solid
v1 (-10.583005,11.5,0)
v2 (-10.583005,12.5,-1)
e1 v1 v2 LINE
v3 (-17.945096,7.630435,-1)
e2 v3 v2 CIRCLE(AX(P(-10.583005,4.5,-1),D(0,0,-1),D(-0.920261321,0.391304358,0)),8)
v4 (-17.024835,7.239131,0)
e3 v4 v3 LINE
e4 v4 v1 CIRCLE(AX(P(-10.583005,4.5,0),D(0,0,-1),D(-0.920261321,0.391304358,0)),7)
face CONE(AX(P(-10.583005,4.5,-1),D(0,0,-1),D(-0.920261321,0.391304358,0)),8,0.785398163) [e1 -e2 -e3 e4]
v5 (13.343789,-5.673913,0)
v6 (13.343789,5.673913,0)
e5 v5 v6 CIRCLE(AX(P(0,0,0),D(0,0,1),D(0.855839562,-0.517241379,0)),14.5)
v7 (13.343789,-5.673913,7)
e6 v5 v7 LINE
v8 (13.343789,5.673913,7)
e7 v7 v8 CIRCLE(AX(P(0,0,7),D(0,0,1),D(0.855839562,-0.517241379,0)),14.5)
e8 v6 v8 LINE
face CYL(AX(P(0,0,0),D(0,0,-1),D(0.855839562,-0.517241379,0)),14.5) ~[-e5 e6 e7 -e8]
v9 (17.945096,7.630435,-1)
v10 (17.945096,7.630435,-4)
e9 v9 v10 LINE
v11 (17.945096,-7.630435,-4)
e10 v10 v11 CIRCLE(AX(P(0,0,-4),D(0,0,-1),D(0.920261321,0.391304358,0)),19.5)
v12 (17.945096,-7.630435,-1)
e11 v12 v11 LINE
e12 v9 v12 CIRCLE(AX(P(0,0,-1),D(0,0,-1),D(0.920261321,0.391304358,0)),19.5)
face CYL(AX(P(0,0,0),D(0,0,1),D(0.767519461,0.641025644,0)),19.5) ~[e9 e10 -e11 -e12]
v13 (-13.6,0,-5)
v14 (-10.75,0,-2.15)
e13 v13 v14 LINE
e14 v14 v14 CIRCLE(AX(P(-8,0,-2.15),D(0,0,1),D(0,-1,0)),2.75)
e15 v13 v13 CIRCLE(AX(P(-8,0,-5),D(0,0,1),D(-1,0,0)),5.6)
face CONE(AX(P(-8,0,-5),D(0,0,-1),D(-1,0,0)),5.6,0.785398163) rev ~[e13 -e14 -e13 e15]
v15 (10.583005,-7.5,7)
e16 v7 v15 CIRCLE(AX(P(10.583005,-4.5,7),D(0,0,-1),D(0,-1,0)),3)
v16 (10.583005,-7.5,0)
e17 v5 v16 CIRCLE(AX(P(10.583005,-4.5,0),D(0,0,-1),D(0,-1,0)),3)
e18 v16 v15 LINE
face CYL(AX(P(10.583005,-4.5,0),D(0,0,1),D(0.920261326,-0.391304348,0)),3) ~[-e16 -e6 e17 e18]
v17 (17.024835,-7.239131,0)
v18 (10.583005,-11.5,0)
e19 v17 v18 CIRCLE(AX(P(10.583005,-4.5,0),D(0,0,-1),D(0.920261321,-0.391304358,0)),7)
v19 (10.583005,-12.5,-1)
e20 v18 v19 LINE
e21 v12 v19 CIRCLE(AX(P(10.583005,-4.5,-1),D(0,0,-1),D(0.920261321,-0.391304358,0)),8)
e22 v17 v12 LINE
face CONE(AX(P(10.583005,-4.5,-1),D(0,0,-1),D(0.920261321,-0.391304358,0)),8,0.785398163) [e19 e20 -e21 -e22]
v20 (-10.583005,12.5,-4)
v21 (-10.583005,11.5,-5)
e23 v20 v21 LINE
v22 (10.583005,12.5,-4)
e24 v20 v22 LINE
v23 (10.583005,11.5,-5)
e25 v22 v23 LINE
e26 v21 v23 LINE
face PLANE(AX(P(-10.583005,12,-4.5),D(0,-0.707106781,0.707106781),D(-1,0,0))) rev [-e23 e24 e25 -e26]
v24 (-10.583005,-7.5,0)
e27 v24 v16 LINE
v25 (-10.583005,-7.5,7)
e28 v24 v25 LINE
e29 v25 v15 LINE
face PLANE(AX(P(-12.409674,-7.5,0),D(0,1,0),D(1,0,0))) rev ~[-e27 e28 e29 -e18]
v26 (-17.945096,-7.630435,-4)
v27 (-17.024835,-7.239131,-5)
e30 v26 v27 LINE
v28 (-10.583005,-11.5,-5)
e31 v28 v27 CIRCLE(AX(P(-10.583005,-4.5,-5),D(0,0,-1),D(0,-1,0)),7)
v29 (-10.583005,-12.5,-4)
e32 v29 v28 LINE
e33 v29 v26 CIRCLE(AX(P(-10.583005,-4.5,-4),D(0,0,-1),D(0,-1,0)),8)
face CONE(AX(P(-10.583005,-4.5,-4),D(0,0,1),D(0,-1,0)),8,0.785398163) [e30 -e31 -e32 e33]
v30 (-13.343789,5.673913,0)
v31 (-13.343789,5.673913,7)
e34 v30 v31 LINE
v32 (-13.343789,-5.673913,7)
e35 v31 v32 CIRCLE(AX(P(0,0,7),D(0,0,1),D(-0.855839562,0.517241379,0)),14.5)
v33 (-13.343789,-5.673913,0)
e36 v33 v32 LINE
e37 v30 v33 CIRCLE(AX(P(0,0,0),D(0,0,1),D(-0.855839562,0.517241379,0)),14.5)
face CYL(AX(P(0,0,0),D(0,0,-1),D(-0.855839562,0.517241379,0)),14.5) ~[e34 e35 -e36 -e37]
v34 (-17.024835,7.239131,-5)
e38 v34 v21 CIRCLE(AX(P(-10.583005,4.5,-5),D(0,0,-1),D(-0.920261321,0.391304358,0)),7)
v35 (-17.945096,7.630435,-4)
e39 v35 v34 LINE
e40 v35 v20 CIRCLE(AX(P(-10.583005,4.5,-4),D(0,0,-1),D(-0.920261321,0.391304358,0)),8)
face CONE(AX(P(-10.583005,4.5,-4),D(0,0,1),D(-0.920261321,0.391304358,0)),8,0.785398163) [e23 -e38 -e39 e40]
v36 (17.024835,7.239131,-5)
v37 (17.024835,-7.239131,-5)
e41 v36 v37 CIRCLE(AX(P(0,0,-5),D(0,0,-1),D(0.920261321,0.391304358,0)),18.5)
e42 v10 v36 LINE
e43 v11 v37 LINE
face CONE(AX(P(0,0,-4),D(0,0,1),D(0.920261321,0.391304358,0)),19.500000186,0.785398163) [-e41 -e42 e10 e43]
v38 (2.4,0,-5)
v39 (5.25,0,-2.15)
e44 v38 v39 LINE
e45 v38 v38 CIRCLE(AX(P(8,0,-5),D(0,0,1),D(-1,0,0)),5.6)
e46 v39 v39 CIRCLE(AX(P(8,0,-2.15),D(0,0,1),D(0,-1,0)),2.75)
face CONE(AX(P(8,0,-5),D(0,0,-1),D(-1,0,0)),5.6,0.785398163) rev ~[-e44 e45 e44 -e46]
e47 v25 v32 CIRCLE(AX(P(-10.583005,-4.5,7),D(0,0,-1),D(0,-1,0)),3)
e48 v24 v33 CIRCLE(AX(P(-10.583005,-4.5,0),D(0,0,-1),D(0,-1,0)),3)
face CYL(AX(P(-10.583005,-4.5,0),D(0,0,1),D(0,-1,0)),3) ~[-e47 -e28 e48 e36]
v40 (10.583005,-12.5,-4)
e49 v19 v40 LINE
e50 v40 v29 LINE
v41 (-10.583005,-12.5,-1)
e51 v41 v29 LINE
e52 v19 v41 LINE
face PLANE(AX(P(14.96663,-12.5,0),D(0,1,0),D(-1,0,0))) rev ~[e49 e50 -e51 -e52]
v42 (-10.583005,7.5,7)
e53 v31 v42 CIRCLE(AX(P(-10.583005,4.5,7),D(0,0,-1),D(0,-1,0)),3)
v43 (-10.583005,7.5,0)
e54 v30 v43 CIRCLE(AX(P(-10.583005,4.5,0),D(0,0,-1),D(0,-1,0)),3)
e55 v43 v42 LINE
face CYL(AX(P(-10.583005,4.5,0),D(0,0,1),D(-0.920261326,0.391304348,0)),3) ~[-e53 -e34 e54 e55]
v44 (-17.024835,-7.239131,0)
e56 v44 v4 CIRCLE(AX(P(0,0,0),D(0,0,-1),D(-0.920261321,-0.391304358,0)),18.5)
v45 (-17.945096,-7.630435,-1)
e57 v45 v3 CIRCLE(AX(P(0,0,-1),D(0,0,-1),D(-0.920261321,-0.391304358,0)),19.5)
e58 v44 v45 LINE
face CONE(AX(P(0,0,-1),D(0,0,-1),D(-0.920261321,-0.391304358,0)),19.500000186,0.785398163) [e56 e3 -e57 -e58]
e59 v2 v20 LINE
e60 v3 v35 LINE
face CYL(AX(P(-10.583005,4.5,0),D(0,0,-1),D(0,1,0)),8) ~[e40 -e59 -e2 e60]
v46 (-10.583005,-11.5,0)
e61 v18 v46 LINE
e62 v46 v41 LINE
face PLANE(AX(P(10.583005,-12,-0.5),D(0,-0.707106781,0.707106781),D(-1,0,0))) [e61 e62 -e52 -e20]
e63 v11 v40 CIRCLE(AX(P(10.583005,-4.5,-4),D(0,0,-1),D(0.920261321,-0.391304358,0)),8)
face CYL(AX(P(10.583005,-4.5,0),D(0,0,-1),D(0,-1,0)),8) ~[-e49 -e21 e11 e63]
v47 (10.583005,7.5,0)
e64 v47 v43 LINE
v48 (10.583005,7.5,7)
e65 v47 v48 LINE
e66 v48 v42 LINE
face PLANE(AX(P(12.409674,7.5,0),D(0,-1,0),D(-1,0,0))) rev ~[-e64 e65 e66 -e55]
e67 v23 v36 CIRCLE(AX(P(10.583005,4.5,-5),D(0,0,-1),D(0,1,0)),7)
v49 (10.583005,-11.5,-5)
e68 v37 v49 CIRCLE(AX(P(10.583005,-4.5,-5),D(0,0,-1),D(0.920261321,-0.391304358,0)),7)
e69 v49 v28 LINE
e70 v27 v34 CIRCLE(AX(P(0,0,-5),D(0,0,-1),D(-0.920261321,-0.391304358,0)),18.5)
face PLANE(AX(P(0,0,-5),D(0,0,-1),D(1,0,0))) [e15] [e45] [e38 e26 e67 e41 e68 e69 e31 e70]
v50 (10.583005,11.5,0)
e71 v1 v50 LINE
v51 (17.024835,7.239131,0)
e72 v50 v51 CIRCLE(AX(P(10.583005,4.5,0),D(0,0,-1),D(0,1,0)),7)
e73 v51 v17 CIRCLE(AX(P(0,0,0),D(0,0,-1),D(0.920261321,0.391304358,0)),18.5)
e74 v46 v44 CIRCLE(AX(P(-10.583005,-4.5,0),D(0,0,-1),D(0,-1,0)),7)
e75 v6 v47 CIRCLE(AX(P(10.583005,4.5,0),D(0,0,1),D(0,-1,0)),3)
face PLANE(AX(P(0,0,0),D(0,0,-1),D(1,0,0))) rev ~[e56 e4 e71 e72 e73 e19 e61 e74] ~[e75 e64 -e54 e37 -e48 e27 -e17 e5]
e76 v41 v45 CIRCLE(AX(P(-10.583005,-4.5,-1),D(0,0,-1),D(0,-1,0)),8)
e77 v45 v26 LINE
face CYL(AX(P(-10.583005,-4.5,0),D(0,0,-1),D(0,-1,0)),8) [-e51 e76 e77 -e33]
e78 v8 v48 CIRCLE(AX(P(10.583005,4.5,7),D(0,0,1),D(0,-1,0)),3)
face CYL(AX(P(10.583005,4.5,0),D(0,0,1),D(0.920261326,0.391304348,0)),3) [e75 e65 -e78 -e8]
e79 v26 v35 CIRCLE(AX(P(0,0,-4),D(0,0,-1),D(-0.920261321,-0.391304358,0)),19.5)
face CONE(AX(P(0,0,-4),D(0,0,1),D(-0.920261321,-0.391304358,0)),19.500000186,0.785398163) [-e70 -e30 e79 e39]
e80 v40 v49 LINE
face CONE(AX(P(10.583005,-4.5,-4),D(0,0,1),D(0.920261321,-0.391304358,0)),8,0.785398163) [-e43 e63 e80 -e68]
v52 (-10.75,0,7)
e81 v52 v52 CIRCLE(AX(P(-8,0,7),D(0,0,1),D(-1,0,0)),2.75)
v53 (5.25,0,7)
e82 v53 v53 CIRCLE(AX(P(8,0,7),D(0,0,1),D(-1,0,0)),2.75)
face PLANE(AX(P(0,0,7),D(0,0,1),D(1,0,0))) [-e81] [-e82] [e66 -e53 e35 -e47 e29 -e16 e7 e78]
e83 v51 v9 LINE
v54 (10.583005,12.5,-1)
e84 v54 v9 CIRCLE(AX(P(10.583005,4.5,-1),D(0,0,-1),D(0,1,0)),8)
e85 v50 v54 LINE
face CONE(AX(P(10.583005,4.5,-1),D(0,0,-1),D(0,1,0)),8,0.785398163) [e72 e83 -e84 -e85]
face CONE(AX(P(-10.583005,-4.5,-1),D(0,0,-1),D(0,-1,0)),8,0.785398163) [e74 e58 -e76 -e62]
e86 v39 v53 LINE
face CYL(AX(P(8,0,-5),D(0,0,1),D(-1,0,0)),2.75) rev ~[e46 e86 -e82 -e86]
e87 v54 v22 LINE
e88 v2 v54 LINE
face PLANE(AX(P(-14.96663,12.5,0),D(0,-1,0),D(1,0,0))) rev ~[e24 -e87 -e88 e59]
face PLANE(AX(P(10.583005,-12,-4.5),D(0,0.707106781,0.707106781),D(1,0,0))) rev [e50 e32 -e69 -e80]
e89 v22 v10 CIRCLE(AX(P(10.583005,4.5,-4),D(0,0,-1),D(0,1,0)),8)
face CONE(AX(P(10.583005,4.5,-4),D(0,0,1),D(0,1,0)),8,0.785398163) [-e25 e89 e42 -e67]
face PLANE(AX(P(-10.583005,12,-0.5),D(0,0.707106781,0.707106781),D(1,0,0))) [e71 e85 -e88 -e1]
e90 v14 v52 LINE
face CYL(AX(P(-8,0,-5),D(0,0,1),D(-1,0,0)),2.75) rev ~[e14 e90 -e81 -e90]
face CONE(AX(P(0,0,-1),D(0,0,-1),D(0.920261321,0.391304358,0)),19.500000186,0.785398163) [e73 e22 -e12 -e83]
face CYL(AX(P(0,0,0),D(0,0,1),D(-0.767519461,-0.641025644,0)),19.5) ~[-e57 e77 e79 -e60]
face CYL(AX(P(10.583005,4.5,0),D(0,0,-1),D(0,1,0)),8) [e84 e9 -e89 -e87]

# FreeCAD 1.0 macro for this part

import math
import FreeCAD as App
import Part
import Sketcher
from FreeCAD import Vector
Q = App.Units.Quantity


def edges_at(feature, points):
    """Names of the edges that pass closest to the given points."""
    edges = feature.Shape.Edges
    near = lambda p: min(range(len(edges)), key=lambda i: edges[i].distToShape(Part.Vertex(*p))[0])
    return sorted({f"Edge{near(p) + 1}" for p in points})

doc = App.newDocument("Part")
params = doc.addObject("Spreadsheet::Sheet", "Params")
for row, (alias, value) in enumerate([
    ("sketch1_radius", "14.5 mm"),
    ("pad1_length", "7 mm"),
    ("sketch2_radius", "19.5 mm"),
    ("pad2_length", "5 mm"),
    ("sketch3_diameter", "5.5 mm"),
    ("hole_diameter", "5.5 mm"),
    ("hole_csink_diameter", "11.2 mm"),
    ("fillet_radius", "8 mm"),
    ("fillet2_radius", "3 mm"),
    ("chamfer_size", "1 mm"),
], start=1):
    params.set(f"A{row}", alias)
    params.set(f"B{row}", "=" + value)
    params.setAlias(f"B{row}", alias)

body = doc.addObject("PartDesign::Body", "Body")

# Sketch on XY plane
sketch1 = doc.addObject("Sketcher::SketchObject", "Sketch")
body.addObject(sketch1)
sketch1.AttachmentSupport = (doc.XY_Plane, [""])
sketch1.MapMode = "FlatFace"
sketch1.addGeometry(Part.LineSegment(Vector(12, 8, 0), Vector(-12, 8, 0)), False)
sketch1.addGeometry(Part.ArcOfCircle(Part.Circle(Vector(0, 0, 0), Vector(0, 0, 1), 14), math.radians(149), math.radians(211)), False)
sketch1.addGeometry(Part.LineSegment(Vector(-12, -8, 0), Vector(12, -8, 0)), False)
sketch1.addGeometry(Part.ArcOfCircle(Part.Circle(Vector(0, 0, 0), Vector(0, 0, 1), 14), math.radians(-31), math.radians(31)), False)
sketch1.addConstraint(Sketcher.Constraint("Coincident", 0, 2, 1, 1))
sketch1.addConstraint(Sketcher.Constraint("Coincident", 1, 2, 2, 1))
sketch1.addConstraint(Sketcher.Constraint("Coincident", 2, 2, 3, 1))
sketch1.addConstraint(Sketcher.Constraint("Coincident", 3, 2, 0, 1))
sketch1.addConstraint(Sketcher.Constraint("Horizontal", 0))
sketch1.addConstraint(Sketcher.Constraint("Horizontal", 2))
sketch1.addConstraint(Sketcher.Constraint("Coincident", 1, 3, -1, 1))
sketch1.addConstraint(Sketcher.Constraint("Coincident", 3, 3, -1, 1))
sketch1.addConstraint(Sketcher.Constraint("Equal", 1, 3))
sketch1.addConstraint(Sketcher.Constraint("Vertical", 0, 2, 1, 2))
sketch1.addConstraint(Sketcher.Constraint("Radius", 1, Q("14.5 mm")))
sketch1.addConstraint(Sketcher.Constraint("DistanceY", 1, 2, 0, 2, Q("15 mm")))
sketch1.setExpression("Constraints[10]", "Params.sketch1_radius")
pad1 = doc.addObject("PartDesign::Pad", "Pad")
body.addObject(pad1)
pad1.Profile = sketch1
pad1.setExpression("Length", "Params.pad1_length")

# Sketch on XY plane
sketch2 = doc.addObject("Sketcher::SketchObject", "Sketch001")
body.addObject(sketch2)
sketch2.AttachmentSupport = (doc.XY_Plane, [""])
sketch2.MapMode = "FlatFace"
sketch2.addGeometry(Part.LineSegment(Vector(15, -13, 0), Vector(-15, -13, 0)), False)
sketch2.addGeometry(Part.ArcOfCircle(Part.Circle(Vector(0, 0, 0), Vector(0, 0, 1), 20), math.radians(140), math.radians(220)), False)
sketch2.addGeometry(Part.LineSegment(Vector(-15, 13, 0), Vector(15, 13, 0)), False)
sketch2.addGeometry(Part.ArcOfCircle(Part.Circle(Vector(0, 0, 0), Vector(0, 0, 1), 20), math.radians(-40), math.radians(40)), False)
sketch2.addConstraint(Sketcher.Constraint("Coincident", 0, 2, 1, 2))
sketch2.addConstraint(Sketcher.Constraint("Coincident", 1, 1, 2, 1))
sketch2.addConstraint(Sketcher.Constraint("Coincident", 2, 2, 3, 2))
sketch2.addConstraint(Sketcher.Constraint("Coincident", 3, 1, 0, 1))
sketch2.addConstraint(Sketcher.Constraint("Horizontal", 0))
sketch2.addConstraint(Sketcher.Constraint("Horizontal", 2))
sketch2.addConstraint(Sketcher.Constraint("Coincident", 1, 3, -1, 1))
sketch2.addConstraint(Sketcher.Constraint("Coincident", 3, 3, -1, 1))
sketch2.addConstraint(Sketcher.Constraint("Equal", 1, 3))
sketch2.addConstraint(Sketcher.Constraint("Vertical", 0, 2, 1, 1))
sketch2.addConstraint(Sketcher.Constraint("Radius", 1, Q("19.5 mm")))
sketch2.addConstraint(Sketcher.Constraint("DistanceY", 0, 2, 1, 1, Q("25 mm")))
sketch2.setExpression("Constraints[10]", "Params.sketch2_radius")
pad2 = doc.addObject("PartDesign::Pad", "Pad001")
body.addObject(pad2)
pad2.Profile = sketch2
pad2.setExpression("Length", "Params.pad2_length")
pad2.Reversed = True

# Sketch on XY plane
sketch3 = doc.addObject("Sketcher::SketchObject", "Sketch002")
body.addObject(sketch3)
sketch3.AttachmentSupport = (doc.XY_Plane, [""])
sketch3.MapMode = "FlatFace"
sketch3.AttachmentOffset = App.Placement(Vector(0, 0, -5), App.Rotation())
sketch3.addGeometry(Part.Circle(Vector(-8, 0, 0), Vector(0, 0, 1), 2.8), False)
sketch3.addGeometry(Part.Circle(Vector(8, 0, 0), Vector(0, 0, 1), 2.8), False)
sketch3.addConstraint(Sketcher.Constraint("Equal", 0, 1))
sketch3.addConstraint(Sketcher.Constraint("Symmetric", 0, 3, 1, 3, -1, 1))
sketch3.addConstraint(Sketcher.Constraint("PointOnObject", 0, 3, -1))
sketch3.addConstraint(Sketcher.Constraint("Diameter", 0, Q("5.5 mm")))
sketch3.addConstraint(Sketcher.Constraint("DistanceX", 0, 3, -1, 1, Q("8 mm")))
sketch3.setExpression("Constraints[3]", "Params.sketch3_diameter")
doc.recompute()
hole = doc.addObject("PartDesign::Hole", "Hole")
body.addObject(hole)
hole.Profile = sketch3
hole.ThreadType = "None"
hole.setExpression("Diameter", "Params.hole_diameter")
hole.DepthType = "ThroughAll"
hole.HoleCutType = "Countersink"
hole.setExpression("HoleCutDiameter", "Params.hole_csink_diameter")
hole.HoleCutCountersinkAngle = 90
hole.Reversed = True
doc.recompute()

fillet = doc.addObject("PartDesign::Fillet", "Fillet")
body.addObject(fillet)
fillet.Base = (hole, edges_at(hole, [
    (14.967, -12.5, -2.5),
    (14.967, 12.5, -2.5),
    (-14.967, 12.5, -2.5),
    (-14.967, -12.5, -2.5),
]))
fillet.setExpression("Radius", "Params.fillet_radius")
doc.recompute()

fillet2 = doc.addObject("PartDesign::Fillet", "Fillet001")
body.addObject(fillet2)
fillet2.Base = (fillet, edges_at(fillet, [
    (12.41, -7.5, 3.5),
    (12.41, 7.5, 3.5),
    (-12.41, 7.5, 3.5),
    (-12.41, -7.5, 3.5),
]))
fillet2.setExpression("Radius", "Params.fillet2_radius")
doc.recompute()

chamfer = doc.addObject("PartDesign::Chamfer", "Chamfer")
body.addObject(chamfer)
chamfer.Base = (fillet2, edges_at(fillet2, [
    (0, -12.5, -5),
    (-19.5, 0, -5),
    (0, 12.5, -5),
    (19.5, 0, -5),
    (19.5, 0, 0),
    (0, -12.5, 0),
    (-19.5, 0, 0),
    (0, 12.5, 0),
]))
chamfer.setExpression("Size", "Params.chamfer_size")

doc.recompute()
